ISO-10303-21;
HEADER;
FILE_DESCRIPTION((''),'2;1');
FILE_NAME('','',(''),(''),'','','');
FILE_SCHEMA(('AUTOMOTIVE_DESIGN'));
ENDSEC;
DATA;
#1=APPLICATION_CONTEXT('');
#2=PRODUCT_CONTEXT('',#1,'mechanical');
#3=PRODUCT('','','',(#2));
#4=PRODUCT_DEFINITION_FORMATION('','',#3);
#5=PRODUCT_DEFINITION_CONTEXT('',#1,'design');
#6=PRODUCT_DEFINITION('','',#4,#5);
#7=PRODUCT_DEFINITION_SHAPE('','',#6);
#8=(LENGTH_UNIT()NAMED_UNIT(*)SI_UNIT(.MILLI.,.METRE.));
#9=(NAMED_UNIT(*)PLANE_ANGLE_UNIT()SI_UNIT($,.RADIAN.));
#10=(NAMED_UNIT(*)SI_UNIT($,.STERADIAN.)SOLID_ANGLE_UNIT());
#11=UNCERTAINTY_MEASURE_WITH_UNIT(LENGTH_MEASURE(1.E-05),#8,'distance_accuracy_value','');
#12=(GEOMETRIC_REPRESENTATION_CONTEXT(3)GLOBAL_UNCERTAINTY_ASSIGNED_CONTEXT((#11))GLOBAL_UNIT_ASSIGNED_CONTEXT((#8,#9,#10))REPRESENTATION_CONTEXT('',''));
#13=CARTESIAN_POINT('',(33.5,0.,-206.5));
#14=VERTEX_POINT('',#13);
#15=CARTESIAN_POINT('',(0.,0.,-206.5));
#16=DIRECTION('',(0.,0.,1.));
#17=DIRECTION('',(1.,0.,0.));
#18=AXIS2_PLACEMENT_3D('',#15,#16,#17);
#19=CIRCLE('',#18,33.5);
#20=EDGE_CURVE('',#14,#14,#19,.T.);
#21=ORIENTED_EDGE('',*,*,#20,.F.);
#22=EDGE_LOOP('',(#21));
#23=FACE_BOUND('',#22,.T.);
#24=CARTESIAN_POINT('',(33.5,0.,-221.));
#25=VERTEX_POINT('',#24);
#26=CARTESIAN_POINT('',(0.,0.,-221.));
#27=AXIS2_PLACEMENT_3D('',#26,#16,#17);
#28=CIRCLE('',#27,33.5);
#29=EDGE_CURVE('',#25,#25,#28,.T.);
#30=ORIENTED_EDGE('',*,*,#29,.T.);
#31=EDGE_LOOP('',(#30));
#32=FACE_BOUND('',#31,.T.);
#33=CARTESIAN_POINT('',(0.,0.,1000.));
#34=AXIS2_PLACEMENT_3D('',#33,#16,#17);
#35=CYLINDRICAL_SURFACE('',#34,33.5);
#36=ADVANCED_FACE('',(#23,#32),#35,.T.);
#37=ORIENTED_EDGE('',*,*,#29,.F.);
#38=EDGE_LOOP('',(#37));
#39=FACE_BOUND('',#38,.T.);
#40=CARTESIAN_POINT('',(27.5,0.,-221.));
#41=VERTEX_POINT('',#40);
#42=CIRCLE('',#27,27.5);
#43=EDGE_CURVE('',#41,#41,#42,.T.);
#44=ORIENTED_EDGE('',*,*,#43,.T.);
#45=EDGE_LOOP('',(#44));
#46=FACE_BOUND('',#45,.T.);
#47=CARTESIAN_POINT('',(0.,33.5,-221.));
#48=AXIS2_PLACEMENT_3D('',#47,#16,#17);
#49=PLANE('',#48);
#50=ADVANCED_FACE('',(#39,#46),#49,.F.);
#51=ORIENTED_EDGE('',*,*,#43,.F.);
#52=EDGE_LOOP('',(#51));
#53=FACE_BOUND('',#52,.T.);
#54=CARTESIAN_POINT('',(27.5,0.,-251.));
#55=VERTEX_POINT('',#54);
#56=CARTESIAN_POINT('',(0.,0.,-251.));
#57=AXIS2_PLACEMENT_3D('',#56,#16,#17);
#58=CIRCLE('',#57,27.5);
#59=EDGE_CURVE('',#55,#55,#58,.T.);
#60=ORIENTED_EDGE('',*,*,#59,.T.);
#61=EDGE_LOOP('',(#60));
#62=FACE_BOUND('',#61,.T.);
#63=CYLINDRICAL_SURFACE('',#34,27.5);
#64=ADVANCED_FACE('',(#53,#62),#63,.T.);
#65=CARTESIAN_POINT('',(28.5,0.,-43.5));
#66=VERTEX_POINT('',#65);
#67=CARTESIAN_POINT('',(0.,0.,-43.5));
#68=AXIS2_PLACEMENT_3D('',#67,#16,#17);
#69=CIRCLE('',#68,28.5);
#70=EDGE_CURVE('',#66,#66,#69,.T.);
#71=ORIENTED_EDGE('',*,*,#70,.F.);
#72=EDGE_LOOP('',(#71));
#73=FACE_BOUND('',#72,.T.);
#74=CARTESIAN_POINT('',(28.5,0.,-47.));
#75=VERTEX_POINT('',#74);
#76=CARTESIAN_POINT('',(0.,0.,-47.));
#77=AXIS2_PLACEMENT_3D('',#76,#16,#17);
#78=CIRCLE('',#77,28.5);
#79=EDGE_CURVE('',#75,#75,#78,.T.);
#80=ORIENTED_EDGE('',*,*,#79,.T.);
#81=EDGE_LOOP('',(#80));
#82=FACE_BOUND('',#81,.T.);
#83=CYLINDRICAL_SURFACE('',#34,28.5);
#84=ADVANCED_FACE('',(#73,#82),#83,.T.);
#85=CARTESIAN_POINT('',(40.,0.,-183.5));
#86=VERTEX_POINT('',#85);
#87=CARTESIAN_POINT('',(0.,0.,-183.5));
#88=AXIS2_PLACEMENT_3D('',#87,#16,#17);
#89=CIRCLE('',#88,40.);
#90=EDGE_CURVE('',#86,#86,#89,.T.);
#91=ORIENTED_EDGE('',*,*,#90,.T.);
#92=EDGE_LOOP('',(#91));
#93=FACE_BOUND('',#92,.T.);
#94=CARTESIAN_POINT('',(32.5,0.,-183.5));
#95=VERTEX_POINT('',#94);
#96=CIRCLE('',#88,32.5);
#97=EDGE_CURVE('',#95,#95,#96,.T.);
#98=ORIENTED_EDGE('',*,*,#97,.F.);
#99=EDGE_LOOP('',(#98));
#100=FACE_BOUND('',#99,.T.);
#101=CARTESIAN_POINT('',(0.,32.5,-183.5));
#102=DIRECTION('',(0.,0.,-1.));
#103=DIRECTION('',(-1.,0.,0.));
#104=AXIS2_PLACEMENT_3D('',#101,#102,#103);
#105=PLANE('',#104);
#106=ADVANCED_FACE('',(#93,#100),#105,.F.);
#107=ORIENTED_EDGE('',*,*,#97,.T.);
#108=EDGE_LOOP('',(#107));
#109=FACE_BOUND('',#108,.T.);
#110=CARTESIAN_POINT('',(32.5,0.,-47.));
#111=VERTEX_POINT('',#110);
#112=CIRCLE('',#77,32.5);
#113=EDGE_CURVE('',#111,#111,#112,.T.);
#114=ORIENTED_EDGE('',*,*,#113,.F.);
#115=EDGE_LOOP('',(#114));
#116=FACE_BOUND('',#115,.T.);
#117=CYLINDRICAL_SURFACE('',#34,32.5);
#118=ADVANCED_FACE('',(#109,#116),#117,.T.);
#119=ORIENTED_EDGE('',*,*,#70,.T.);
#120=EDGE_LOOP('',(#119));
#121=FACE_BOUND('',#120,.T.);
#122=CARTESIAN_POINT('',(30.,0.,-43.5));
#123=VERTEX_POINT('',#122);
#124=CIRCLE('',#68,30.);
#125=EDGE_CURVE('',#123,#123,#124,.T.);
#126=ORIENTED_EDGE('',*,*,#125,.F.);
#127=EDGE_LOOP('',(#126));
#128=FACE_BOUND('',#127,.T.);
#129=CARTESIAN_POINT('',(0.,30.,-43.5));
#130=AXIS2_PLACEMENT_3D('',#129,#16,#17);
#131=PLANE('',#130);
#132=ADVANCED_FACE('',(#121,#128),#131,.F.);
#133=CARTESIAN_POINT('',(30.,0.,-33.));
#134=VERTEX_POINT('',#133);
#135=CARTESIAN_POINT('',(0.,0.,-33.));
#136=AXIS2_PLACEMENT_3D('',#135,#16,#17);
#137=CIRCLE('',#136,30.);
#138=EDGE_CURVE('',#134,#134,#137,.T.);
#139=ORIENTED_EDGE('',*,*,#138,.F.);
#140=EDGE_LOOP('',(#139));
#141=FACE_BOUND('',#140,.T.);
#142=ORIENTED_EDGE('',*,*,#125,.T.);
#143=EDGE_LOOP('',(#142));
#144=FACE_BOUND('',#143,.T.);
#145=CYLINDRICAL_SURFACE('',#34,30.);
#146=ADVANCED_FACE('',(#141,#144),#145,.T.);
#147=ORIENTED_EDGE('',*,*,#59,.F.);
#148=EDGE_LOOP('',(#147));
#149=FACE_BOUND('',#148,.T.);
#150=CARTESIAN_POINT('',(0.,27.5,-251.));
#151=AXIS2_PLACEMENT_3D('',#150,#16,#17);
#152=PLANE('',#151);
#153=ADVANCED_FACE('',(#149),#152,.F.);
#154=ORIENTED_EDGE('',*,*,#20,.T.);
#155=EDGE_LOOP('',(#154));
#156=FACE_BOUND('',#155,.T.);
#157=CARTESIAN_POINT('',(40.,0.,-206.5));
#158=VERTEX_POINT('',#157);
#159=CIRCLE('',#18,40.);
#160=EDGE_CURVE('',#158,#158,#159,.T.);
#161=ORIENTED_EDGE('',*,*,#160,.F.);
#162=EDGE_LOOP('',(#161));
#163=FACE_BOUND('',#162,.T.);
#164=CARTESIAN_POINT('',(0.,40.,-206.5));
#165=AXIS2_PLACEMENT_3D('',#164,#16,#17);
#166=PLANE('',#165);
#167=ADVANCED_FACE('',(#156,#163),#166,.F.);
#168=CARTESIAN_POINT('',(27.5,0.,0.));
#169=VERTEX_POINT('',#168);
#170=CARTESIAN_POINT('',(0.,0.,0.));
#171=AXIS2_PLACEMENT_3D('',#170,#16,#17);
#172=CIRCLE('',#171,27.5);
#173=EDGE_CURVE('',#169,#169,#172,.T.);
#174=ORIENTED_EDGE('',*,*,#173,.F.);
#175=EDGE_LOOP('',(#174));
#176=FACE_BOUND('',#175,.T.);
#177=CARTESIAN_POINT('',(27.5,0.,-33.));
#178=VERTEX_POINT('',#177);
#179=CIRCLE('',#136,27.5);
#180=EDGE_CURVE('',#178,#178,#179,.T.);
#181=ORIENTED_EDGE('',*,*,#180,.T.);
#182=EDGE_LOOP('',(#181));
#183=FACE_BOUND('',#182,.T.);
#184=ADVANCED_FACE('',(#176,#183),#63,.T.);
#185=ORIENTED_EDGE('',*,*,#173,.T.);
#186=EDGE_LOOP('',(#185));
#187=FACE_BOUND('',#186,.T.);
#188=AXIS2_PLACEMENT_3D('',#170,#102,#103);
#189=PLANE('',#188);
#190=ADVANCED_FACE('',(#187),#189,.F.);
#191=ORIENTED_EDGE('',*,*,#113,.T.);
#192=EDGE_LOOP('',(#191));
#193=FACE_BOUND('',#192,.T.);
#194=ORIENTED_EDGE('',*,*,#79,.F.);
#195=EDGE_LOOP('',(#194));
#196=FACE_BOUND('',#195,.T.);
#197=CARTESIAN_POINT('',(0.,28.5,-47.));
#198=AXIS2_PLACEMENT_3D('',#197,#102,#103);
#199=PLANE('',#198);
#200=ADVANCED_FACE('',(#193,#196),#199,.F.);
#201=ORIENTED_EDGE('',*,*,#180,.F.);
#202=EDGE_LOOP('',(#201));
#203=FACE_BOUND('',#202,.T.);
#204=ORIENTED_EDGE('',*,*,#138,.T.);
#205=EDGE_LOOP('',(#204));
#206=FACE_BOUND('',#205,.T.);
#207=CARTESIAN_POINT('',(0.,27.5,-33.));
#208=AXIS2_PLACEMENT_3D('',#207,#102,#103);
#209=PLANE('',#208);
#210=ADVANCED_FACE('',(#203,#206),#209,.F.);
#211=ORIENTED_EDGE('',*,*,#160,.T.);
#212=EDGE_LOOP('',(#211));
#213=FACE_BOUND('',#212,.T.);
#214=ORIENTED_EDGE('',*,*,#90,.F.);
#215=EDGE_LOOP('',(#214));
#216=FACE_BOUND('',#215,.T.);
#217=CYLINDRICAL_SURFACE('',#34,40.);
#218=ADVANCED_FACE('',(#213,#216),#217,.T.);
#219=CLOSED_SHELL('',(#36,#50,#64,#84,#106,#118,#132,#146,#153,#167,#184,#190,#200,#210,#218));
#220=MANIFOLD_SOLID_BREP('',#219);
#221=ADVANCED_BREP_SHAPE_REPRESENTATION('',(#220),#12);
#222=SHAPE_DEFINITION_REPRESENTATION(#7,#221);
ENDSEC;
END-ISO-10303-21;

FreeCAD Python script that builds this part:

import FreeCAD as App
import Part
import Sketcher
from FreeCAD import Vector
Q = App.Units.Quantity

doc = App.newDocument("Part")
body = doc.addObject("PartDesign::Body", "Body")

# Sketch on YZ plane
sketch1 = doc.addObject("Sketcher::SketchObject", "Sketch")
body.addObject(sketch1)
sketch1.AttachmentSupport = (doc.YZ_Plane, [""])
sketch1.MapMode = "FlatFace"
sketch1.addGeometry([
    Part.LineSegment(Vector(0, 0, 0), Vector(0, -251, 0)),  # 0
    Part.LineSegment(Vector(0, -251, 0), Vector(27.5, -251, 0)),  # 1
    Part.LineSegment(Vector(27.5, -251, 0), Vector(27.5, -221, 0)),  # 2
    Part.LineSegment(Vector(27.5, -221, 0), Vector(33.5, -221, 0)),  # 3
    Part.LineSegment(Vector(33.5, -221, 0), Vector(33.5, -206.5, 0)),  # 4
    Part.LineSegment(Vector(33.5, -206.5, 0), Vector(40, -206.5, 0)),  # 5
    Part.LineSegment(Vector(40, -206.5, 0), Vector(40, -183.5, 0)),  # 6
    Part.LineSegment(Vector(40, -183.5, 0), Vector(32.5, -183.5, 0)),  # 7
    Part.LineSegment(Vector(32.5, -183.5, 0), Vector(32.5, -47, 0)),  # 8
    Part.LineSegment(Vector(32.5, -47, 0), Vector(28.5, -47, 0)),  # 9
    Part.LineSegment(Vector(28.5, -47, 0), Vector(28.5, -43.5, 0)),  # 10
    Part.LineSegment(Vector(28.5, -43.5, 0), Vector(30, -43.5, 0)),  # 11
    Part.LineSegment(Vector(30, -43.5, 0), Vector(30, -33, 0)),  # 12
    Part.LineSegment(Vector(30, -33, 0), Vector(27.5, -33, 0)),  # 13
    Part.LineSegment(Vector(27.5, -33, 0), Vector(27.5, 0, 0)),  # 14
    Part.LineSegment(Vector(27.5, 0, 0), Vector(0, 0, 0)),  # 15
], False)
sketch1.addConstraint([
    Sketcher.Constraint("Coincident", 0, 2, 1, 1),
    Sketcher.Constraint("Coincident", 1, 2, 2, 1),
    Sketcher.Constraint("Coincident", 2, 2, 3, 1),
    Sketcher.Constraint("Coincident", 3, 2, 4, 1),
    Sketcher.Constraint("Coincident", 4, 2, 5, 1),
    Sketcher.Constraint("Coincident", 5, 2, 6, 1),
    Sketcher.Constraint("Coincident", 6, 2, 7, 1),
    Sketcher.Constraint("Coincident", 7, 2, 8, 1),
    Sketcher.Constraint("Coincident", 8, 2, 9, 1),
    Sketcher.Constraint("Coincident", 9, 2, 10, 1),
    Sketcher.Constraint("Coincident", 10, 2, 11, 1),
    Sketcher.Constraint("Coincident", 11, 2, 12, 1),
    Sketcher.Constraint("Coincident", 12, 2, 13, 1),
    Sketcher.Constraint("Coincident", 13, 2, 14, 1),
    Sketcher.Constraint("Coincident", 14, 2, 15, 1),
    Sketcher.Constraint("Coincident", 15, 2, 0, 1),
    Sketcher.Constraint("Vertical", 0),
    Sketcher.Constraint("Horizontal", 1),
    Sketcher.Constraint("Vertical", 2),
    Sketcher.Constraint("Horizontal", 3),
    Sketcher.Constraint("Vertical", 4),
    Sketcher.Constraint("Horizontal", 5),
    Sketcher.Constraint("Vertical", 6),
    Sketcher.Constraint("Horizontal", 7),
    Sketcher.Constraint("Vertical", 8),
    Sketcher.Constraint("Horizontal", 9),
    Sketcher.Constraint("Vertical", 10),
    Sketcher.Constraint("Horizontal", 11),
    Sketcher.Constraint("Vertical", 12),
    Sketcher.Constraint("Horizontal", 13),
    Sketcher.Constraint("Vertical", 14),
    Sketcher.Constraint("Horizontal", 15),
    Sketcher.Constraint("Coincident", 15, 2, -1, 1),
    Sketcher.Constraint("Vertical", 2, 2, 13, 2),
    Sketcher.Constraint("DistanceX", 3, 1, 3, 2, Q("6 mm")),
    Sketcher.Constraint("DistanceX", 9, 2, 9, 1, Q("4 mm")),
    Sketcher.Constraint("DistanceY", 0, 2, 0, 1, Q("251 mm")),
    Sketcher.Constraint("DistanceY", 2, 1, 2, 2, Q("30 mm")),
    Sketcher.Constraint("DistanceY", 6, 1, 6, 2, Q("23 mm")),
    Sketcher.Constraint("DistanceY", 14, 1, 14, 2, Q("33 mm")),
    Sketcher.Constraint("DistanceX", 1, 1, 1, 2, Q("27.5 mm")),
    Sketcher.Constraint("DistanceX", 5, 1, 5, 2, Q("6.5 mm")),
    Sketcher.Constraint("DistanceX", 7, 2, 7, 1, Q("7.5 mm")),
    Sketcher.Constraint("DistanceX", 11, 1, 11, 2, Q("1.5 mm")),
    Sketcher.Constraint("DistanceY", 4, 1, 4, 2, Q("14.5 mm")),
    Sketcher.Constraint("DistanceY", 8, 1, 8, 2, Q("136.5 mm")),
    Sketcher.Constraint("DistanceY", 10, 1, 10, 2, Q("3.5 mm")),
])
revolution = doc.addObject("PartDesign::Revolution", "Revolution")
body.addObject(revolution)
revolution.Profile = sketch1
revolution.ReferenceAxis = (sketch1, ["V_Axis"])
revolution.Angle = 360

doc.recompute()
